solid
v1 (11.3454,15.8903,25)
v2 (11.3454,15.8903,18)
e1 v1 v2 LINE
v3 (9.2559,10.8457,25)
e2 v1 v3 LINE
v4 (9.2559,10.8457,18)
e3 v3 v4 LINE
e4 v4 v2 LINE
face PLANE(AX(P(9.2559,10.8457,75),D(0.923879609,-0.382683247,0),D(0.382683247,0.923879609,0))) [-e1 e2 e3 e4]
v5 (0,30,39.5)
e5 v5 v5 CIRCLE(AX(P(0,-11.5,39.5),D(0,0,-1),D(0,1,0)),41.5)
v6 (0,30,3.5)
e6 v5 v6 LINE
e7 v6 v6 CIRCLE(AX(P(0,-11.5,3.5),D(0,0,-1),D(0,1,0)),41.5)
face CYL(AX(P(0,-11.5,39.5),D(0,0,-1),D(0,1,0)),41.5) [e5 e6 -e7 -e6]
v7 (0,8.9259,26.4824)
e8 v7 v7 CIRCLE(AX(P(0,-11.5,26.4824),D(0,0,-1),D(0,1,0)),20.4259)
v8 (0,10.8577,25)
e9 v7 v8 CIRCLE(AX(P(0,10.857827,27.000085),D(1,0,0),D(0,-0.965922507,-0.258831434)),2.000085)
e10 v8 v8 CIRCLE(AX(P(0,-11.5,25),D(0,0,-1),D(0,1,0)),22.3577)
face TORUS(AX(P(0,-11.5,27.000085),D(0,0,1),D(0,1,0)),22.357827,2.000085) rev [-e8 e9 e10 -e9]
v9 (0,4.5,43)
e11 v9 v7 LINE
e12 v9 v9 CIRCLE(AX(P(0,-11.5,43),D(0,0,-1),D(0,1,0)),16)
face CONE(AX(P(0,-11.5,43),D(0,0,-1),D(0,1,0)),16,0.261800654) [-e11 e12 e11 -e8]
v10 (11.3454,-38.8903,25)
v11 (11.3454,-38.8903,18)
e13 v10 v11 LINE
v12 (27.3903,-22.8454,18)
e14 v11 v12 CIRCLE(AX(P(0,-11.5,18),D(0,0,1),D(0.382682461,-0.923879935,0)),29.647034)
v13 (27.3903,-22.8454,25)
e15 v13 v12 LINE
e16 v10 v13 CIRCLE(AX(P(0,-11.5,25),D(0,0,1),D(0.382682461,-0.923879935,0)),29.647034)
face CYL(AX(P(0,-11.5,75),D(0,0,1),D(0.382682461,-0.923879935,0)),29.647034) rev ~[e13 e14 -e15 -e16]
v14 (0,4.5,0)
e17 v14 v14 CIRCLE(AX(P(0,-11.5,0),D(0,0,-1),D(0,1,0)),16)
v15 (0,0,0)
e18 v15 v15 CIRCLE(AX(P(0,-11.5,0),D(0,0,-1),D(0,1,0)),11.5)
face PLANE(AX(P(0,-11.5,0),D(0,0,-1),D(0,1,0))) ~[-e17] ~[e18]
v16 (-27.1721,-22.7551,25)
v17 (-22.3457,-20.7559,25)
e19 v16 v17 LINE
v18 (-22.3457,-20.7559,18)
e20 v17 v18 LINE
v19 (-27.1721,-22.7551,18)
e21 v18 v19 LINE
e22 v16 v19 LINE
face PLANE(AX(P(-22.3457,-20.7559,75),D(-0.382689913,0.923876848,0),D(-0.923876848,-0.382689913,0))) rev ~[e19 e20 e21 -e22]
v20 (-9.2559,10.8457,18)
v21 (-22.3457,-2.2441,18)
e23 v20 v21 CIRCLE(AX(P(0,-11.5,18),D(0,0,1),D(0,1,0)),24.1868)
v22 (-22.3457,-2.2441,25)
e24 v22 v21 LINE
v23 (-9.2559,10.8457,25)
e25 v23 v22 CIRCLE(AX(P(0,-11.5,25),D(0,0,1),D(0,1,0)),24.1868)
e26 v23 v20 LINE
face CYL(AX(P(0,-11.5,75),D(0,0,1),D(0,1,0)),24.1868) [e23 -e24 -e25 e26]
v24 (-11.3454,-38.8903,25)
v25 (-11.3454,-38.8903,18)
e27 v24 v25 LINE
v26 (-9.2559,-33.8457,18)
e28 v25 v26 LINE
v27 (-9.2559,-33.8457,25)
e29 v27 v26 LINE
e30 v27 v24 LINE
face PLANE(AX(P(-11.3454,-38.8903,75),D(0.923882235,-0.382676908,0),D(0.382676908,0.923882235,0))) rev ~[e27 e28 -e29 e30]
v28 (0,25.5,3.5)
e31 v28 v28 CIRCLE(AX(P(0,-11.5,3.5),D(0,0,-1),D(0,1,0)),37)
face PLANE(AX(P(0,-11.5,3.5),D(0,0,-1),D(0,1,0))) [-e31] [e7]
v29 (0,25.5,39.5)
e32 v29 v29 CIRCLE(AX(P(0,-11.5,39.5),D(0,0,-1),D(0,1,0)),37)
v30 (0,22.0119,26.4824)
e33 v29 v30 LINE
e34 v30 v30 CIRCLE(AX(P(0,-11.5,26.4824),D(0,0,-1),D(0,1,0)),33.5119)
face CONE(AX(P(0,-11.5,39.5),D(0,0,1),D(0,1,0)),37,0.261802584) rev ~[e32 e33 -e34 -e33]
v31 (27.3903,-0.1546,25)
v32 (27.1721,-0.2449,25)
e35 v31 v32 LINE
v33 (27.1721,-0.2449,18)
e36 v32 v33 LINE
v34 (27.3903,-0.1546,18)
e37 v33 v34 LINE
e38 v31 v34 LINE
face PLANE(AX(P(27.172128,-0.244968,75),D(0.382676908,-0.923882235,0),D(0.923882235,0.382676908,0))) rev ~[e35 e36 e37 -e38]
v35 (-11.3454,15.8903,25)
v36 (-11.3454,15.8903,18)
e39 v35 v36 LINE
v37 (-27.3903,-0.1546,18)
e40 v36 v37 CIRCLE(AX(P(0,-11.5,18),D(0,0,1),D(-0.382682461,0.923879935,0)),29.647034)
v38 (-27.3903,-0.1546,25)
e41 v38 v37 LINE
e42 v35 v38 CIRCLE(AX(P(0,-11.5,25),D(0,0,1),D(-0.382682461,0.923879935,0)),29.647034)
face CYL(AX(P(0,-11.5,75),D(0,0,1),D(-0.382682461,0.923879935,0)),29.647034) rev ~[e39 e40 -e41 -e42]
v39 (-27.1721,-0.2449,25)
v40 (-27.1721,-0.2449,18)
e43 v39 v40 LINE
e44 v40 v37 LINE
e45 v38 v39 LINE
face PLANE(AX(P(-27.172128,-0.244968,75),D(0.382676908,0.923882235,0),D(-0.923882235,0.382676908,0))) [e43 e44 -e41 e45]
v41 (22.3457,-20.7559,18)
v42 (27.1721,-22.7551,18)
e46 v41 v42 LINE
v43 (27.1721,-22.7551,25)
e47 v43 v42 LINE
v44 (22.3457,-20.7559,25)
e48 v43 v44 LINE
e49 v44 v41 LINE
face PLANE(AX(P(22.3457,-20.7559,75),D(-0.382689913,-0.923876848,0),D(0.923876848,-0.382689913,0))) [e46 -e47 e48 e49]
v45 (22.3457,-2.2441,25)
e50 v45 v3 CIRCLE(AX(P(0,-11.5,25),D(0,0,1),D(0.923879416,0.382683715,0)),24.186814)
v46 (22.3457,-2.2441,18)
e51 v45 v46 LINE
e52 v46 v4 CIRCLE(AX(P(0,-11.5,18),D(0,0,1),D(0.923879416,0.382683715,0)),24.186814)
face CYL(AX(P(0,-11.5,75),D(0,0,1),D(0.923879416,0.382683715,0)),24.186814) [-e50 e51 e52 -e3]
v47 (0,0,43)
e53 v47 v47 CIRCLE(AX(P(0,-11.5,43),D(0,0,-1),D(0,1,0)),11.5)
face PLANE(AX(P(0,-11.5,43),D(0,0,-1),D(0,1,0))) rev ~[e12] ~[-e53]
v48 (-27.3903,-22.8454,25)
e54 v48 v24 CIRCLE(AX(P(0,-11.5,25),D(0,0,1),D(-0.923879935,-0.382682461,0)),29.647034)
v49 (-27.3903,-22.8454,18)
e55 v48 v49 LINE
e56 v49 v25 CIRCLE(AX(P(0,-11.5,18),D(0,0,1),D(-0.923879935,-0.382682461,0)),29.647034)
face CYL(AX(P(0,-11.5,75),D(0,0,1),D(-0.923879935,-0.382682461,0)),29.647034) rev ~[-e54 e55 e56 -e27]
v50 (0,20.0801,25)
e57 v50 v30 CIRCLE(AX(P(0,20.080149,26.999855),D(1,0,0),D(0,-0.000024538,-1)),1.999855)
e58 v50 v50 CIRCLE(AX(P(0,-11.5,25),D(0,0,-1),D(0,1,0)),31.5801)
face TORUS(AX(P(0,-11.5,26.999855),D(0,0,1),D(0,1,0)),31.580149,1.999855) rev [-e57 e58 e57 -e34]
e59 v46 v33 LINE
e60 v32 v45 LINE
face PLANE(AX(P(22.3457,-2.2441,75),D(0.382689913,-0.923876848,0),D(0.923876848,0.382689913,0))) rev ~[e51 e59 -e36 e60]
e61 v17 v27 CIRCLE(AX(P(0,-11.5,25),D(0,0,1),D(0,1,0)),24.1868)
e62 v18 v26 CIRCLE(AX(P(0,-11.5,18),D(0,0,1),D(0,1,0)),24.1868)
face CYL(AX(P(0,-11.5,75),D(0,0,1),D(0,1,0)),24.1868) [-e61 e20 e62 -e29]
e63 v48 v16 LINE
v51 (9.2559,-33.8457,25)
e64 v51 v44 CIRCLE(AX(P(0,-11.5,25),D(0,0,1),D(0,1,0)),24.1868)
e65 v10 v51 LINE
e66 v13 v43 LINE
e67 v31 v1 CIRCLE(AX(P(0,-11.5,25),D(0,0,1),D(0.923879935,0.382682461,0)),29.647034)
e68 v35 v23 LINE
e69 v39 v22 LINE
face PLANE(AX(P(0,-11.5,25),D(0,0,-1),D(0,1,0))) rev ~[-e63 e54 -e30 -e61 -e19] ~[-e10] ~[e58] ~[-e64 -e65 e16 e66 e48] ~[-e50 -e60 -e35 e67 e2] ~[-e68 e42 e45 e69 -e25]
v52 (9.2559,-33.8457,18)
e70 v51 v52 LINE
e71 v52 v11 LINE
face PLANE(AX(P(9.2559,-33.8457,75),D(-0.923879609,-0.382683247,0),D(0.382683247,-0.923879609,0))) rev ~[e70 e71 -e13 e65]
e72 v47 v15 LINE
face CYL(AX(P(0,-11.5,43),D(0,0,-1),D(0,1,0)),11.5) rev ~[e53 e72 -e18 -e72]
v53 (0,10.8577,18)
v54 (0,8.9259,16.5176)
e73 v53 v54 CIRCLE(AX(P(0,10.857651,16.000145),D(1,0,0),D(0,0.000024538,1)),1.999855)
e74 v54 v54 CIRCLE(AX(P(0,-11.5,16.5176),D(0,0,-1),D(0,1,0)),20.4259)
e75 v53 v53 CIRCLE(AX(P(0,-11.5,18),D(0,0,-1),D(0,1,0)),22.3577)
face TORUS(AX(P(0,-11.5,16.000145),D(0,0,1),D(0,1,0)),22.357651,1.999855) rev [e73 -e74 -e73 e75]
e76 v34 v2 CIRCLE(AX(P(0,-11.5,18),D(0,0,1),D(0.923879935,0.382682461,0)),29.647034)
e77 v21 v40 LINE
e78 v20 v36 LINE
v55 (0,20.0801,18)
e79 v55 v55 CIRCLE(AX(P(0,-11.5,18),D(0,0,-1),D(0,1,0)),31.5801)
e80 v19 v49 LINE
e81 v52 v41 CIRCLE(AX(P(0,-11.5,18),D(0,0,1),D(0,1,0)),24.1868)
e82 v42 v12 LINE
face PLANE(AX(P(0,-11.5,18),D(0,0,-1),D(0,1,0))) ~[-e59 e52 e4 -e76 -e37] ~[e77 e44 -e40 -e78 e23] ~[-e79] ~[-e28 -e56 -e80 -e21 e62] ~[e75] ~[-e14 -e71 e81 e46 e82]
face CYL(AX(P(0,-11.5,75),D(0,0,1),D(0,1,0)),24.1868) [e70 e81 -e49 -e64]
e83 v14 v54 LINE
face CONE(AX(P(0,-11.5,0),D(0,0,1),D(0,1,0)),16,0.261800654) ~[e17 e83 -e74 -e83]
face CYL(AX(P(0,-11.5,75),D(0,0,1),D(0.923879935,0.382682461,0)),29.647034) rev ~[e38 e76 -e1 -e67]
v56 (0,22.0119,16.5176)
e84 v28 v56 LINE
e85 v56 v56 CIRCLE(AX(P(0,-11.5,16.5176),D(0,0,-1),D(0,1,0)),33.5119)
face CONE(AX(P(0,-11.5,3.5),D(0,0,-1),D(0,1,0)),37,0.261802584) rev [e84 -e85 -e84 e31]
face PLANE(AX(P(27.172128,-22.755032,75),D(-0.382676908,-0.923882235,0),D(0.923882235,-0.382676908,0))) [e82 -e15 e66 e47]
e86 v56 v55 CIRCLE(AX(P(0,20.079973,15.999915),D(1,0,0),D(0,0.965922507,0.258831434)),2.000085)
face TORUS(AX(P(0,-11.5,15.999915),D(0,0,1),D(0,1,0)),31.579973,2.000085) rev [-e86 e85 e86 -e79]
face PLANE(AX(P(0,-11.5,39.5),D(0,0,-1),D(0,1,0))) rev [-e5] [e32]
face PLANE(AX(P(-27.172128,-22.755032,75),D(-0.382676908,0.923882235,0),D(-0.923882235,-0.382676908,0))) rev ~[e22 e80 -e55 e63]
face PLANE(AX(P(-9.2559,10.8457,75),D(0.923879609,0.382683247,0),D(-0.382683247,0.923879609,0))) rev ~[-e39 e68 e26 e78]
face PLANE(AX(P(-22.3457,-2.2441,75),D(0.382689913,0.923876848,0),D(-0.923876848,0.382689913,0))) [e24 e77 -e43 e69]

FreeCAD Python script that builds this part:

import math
import FreeCAD as App
import Part
import Sketcher

V = App.Vector
Q = App.Units.Quantity

doc = App.newDocument("Part")
body = doc.addObject("PartDesign::Body", "Body")

# Sketch on YZ plane
sketch1 = doc.addObject("Sketcher::SketchObject", "Sketch")
body.addObject(sketch1)
sketch1.AttachmentSupport = (doc.YZ_Plane, [""])
sketch1.MapMode = "FlatFace"
sketch1.addGeometry([
    Part.LineSegment(V(0, 43, 0), V(0, 0, 0)),  # 0
    Part.LineSegment(V(0, 0, 0), V(4.5, 0, 0)),  # 1
    Part.LineSegment(V(4.5, 0, 0), V(8.9, 16.5, 0)),  # 2
    Part.ArcOfCircle(Part.Circle(V(10.9, 16, 0), V(0, 0, 1), 2), math.radians(90), math.radians(165)),  # 3
    Part.LineSegment(V(10.9, 18, 0), V(20.1, 18, 0)),  # 4
    Part.ArcOfCircle(Part.Circle(V(20.1, 16, 0), V(0, 0, 1), 2), math.radians(15), math.radians(90)),  # 5
    Part.LineSegment(V(22, 16.5, 0), V(25.5, 3.5, 0)),  # 6
    Part.LineSegment(V(25.5, 3.5, 0), V(30, 3.5, 0)),  # 7
    Part.LineSegment(V(30, 3.5, 0), V(30, 39.5, 0)),  # 8
    Part.LineSegment(V(30, 39.5, 0), V(25.5, 39.5, 0)),  # 9
    Part.LineSegment(V(25.5, 39.5, 0), V(22, 26.5, 0)),  # 10
    Part.ArcOfCircle(Part.Circle(V(20.1, 27, 0), V(0, 0, 1), 2), math.radians(-90), math.radians(-15)),  # 11
    Part.LineSegment(V(20.1, 25, 0), V(10.9, 25, 0)),  # 12
    Part.ArcOfCircle(Part.Circle(V(10.9, 27, 0), V(0, 0, 1), 2), math.radians(-165), math.radians(-90)),  # 13
    Part.LineSegment(V(8.9, 26.5, 0), V(4.5, 43, 0)),  # 14
    Part.LineSegment(V(4.5, 43, 0), V(0, 43, 0)),  # 15
], False)
sketch1.addGeometry(Part.LineSegment(V(-11.5, 43, 0), V(-11.5, 0, 0)), True)  # axis
sketch1.addConstraint([
    Sketcher.Constraint("Coincident", 0, 2, 1, 1),
    Sketcher.Constraint("Coincident", 1, 2, 2, 1),
    Sketcher.Constraint("Tangent", 2, 2, 3, 2),
    Sketcher.Constraint("Tangent", 3, 1, 4, 1),
    Sketcher.Constraint("Tangent", 4, 2, 5, 2),
    Sketcher.Constraint("Tangent", 5, 1, 6, 1),
    Sketcher.Constraint("Coincident", 6, 2, 7, 1),
    Sketcher.Constraint("Coincident", 7, 2, 8, 1),
    Sketcher.Constraint("Coincident", 8, 2, 9, 1),
    Sketcher.Constraint("Coincident", 9, 2, 10, 1),
    Sketcher.Constraint("Tangent", 10, 2, 11, 2),
    Sketcher.Constraint("Tangent", 11, 1, 12, 1),
    Sketcher.Constraint("Tangent", 12, 2, 13, 2),
    Sketcher.Constraint("Tangent", 13, 1, 14, 1),
    Sketcher.Constraint("Coincident", 14, 2, 15, 1),
    Sketcher.Constraint("Coincident", 15, 2, 0, 1),
    Sketcher.Constraint("Vertical", 0),
    Sketcher.Constraint("Horizontal", 1),
    Sketcher.Constraint("Horizontal", 4),
    Sketcher.Constraint("Horizontal", 7),
    Sketcher.Constraint("Vertical", 8),
    Sketcher.Constraint("Horizontal", 9),
    Sketcher.Constraint("Horizontal", 12),
    Sketcher.Constraint("Horizontal", 15),
    Sketcher.Constraint("Vertical", 16),
    Sketcher.Constraint("Coincident", 0, 2, -1, 1),
    Sketcher.Constraint("Equal", 3, 5),
    Sketcher.Constraint("Equal", 5, 11),
    Sketcher.Constraint("Equal", 11, 13),
    Sketcher.Constraint("PointOnObject", 16, 2, -1),
    Sketcher.Constraint("Parallel", 2, 10),
    Sketcher.Constraint("Parallel", 6, 14),
    Sketcher.Constraint("Horizontal", 2, 2, 5, 1),
    Sketcher.Constraint("Horizontal", 15, 2, 16, 1),
    Sketcher.Constraint("Vertical", 5, 3, 11, 3),
    Sketcher.Constraint("Vertical", 3, 3, 13, 3),
    Sketcher.Constraint("Vertical", 6, 2, 9, 2),
    Sketcher.Constraint("Vertical", 1, 2, 14, 2),
    Sketcher.Constraint("Equal", 1, 7),
    Sketcher.Constraint("Radius", 3, Q("2 mm")),
    Sketcher.Constraint("DistanceY", 0, 2, 0, 1, Q("43 mm")),
    Sketcher.Constraint("DistanceY", 8, 1, 8, 2, Q("36 mm")),
    Sketcher.Constraint("DistanceX", 1, 1, 1, 2, Q("4.5 mm")),
    Sketcher.Constraint("DistanceY", -1, 1, 3, 1, Q("18 mm")),
    Sketcher.Constraint("DistanceX", -1, 1, 7, 2, Q("30 mm")),
    Sketcher.Constraint("Angle", 2, Q("75 deg")),
    Sketcher.Constraint("DistanceX", 16, 1, 14, 2, Q("16 mm")),
])
revolution = doc.addObject("PartDesign::Revolution", "Revolution")
body.addObject(revolution)
revolution.Profile = sketch1
revolution.ReferenceAxis = (sketch1, ["Axis0"])
revolution.Angle = 360

# Sketch on XY plane
sketch2 = doc.addObject("Sketcher::SketchObject", "Sketch001")
body.addObject(sketch2)
sketch2.AttachmentSupport = (doc.XY_Plane, [""])
sketch2.MapMode = "FlatFace"
sketch2.AttachmentOffset = App.Placement(V(0, 0, 75), App.Rotation())
sketch2.addGeometry([
    Part.LineSegment(V(11.35, 15.89, 0), V(9.26, 10.85, 0)),  # 0
    Part.ArcOfCircle(Part.Circle(V(0, -11.5, 0), V(0, 0, 1), 24.19), math.radians(23), math.radians(67)),  # 1
    Part.LineSegment(V(22.35, -2.24, 0), V(27.17, -0.24, 0)),  # 2
    Part.LineSegment(V(27.17, -0.24, 0), V(27.39, -0.15, 0)),  # 3
    Part.ArcOfCircle(Part.Circle(V(0, -11.5, 0), V(0, 0, 1), 29.65), math.radians(22), math.radians(68)),  # 4
    Part.ArcOfCircle(Part.Circle(V(0, -11.5, 0), V(0, 0, 1), 24.19), math.radians(113), math.radians(157)),  # 5
    Part.LineSegment(V(-9.26, 10.85, 0), V(-11.35, 15.89, 0)),  # 6
    Part.ArcOfCircle(Part.Circle(V(0, -11.5, 0), V(0, 0, 1), 29.65), math.radians(112), math.radians(158)),  # 7
    Part.LineSegment(V(-27.39, -0.15, 0), V(-27.17, -0.24, 0)),  # 8
    Part.LineSegment(V(-27.17, -0.24, 0), V(-22.35, -2.24, 0)),  # 9
    Part.LineSegment(V(27.17, -22.76, 0), V(22.35, -20.76, 0)),  # 10
    Part.ArcOfCircle(Part.Circle(V(0, -11.5, 0), V(0, 0, 1), 24.19), math.radians(-67), math.radians(-23)),  # 11
    Part.LineSegment(V(9.26, -33.85, 0), V(11.35, -38.89, 0)),  # 12
    Part.ArcOfCircle(Part.Circle(V(0, -11.5, 0), V(0, 0, 1), 29.65), math.radians(-68), math.radians(-22)),  # 13
    Part.LineSegment(V(27.39, -22.85, 0), V(27.17, -22.76, 0)),  # 14
    Part.LineSegment(V(-11.35, -38.89, 0), V(-9.26, -33.85, 0)),  # 15
    Part.ArcOfCircle(Part.Circle(V(0, -11.5, 0), V(0, 0, 1), 24.19), math.radians(-157), math.radians(-113)),  # 16
    Part.LineSegment(V(-22.35, -20.76, 0), V(-27.17, -22.76, 0)),  # 17
    Part.LineSegment(V(-27.17, -22.76, 0), V(-27.39, -22.85, 0)),  # 18
    Part.ArcOfCircle(Part.Circle(V(0, -11.5, 0), V(0, 0, 1), 29.65), math.radians(-158), math.radians(-112)),  # 19
], False)
sketch2.addConstraint([
    Sketcher.Constraint("Coincident", 0, 2, 1, 2),
    Sketcher.Constraint("Coincident", 1, 1, 2, 1),
    Sketcher.Constraint("Coincident", 2, 2, 3, 1),
    Sketcher.Constraint("Coincident", 3, 2, 4, 1),
    Sketcher.Constraint("Coincident", 4, 2, 0, 1),
    Sketcher.Constraint("Coincident", 5, 1, 6, 1),
    Sketcher.Constraint("Coincident", 6, 2, 7, 1),
    Sketcher.Constraint("Coincident", 7, 2, 8, 1),
    Sketcher.Constraint("Coincident", 8, 2, 9, 1),
    Sketcher.Constraint("Coincident", 9, 2, 5, 2),
    Sketcher.Constraint("Coincident", 10, 2, 11, 2),
    Sketcher.Constraint("Coincident", 11, 1, 12, 1),
    Sketcher.Constraint("Coincident", 12, 2, 13, 1),
    Sketcher.Constraint("Coincident", 13, 2, 14, 1),
    Sketcher.Constraint("Coincident", 14, 2, 10, 1),
    Sketcher.Constraint("Coincident", 15, 2, 16, 2),
    Sketcher.Constraint("Coincident", 16, 1, 17, 1),
    Sketcher.Constraint("Coincident", 17, 2, 18, 1),
    Sketcher.Constraint("Coincident", 18, 2, 19, 1),
    Sketcher.Constraint("Coincident", 19, 2, 15, 1),
    Sketcher.Constraint("Coincident", 4, 3, 1, 3),
    Sketcher.Constraint("Coincident", 5, 3, 1, 3),
    Sketcher.Constraint("Coincident", 7, 3, 1, 3),
    Sketcher.Constraint("Coincident", 11, 3, 1, 3),
    Sketcher.Constraint("Coincident", 13, 3, 1, 3),
    Sketcher.Constraint("Coincident", 16, 3, 1, 3),
    Sketcher.Constraint("Coincident", 19, 3, 1, 3),
    Sketcher.Constraint("Equal", 1, 5),
    Sketcher.Constraint("Equal", 4, 7),
    Sketcher.Constraint("Equal", 5, 11),
    Sketcher.Constraint("Equal", 7, 13),
    Sketcher.Constraint("Equal", 11, 16),
    Sketcher.Constraint("Equal", 13, 19),
    Sketcher.Constraint("Symmetric", 0, 2, 5, 1, -2),
    Sketcher.Constraint("Symmetric", 2, 2, 8, 2, -2),
    Sketcher.Constraint("Symmetric", 14, 2, 17, 2, -2),
    Sketcher.Constraint("Parallel", 2, 3),
    Sketcher.Constraint("Perpendicular", 3, 6),
    Sketcher.Constraint("Perpendicular", 0, 8),
    Sketcher.Constraint("Parallel", 8, 9),
    Sketcher.Constraint("Parallel", 9, 10),
    Sketcher.Constraint("Parallel", 6, 12),
    Sketcher.Constraint("Parallel", 10, 14),
    Sketcher.Constraint("Perpendicular", 14, 15),
    Sketcher.Constraint("Perpendicular", 12, 17),
    Sketcher.Constraint("Parallel", 17, 18),
    Sketcher.Constraint("Horizontal", 4, 2, 6, 2),
    Sketcher.Constraint("Horizontal", 11, 1, 15, 2),
    Sketcher.Constraint("Vertical", 1, 1, 10, 2),
    Sketcher.Constraint("Vertical", 0, 2, 11, 1),
    Sketcher.Constraint("Vertical", 2, 2, 14, 2),
    Sketcher.Constraint("Angle", 2, Q("22.5004 deg")),
    Sketcher.Constraint("Radius", 4, Q("29.647 mm")),
    Sketcher.Constraint("DistanceY", 1, 3, -1, 1, Q("11.5 mm")),
    Sketcher.Constraint("Radius", 1, Q("24.1868 mm")),
    Sketcher.Constraint("Distance", 2, Q("5.224 mm")),
    Sketcher.Constraint("DistanceX", -1, 1, 0, 2, Q("9.256 mm")),
    Sketcher.Constraint("DistanceY", 1, 1, -1, 1, Q("2.244 mm")),
])
pocket1 = doc.addObject("PartDesign::Pocket", "Pocket")
body.addObject(pocket1)
pocket1.Profile = sketch2
pocket1.Type = "ThroughAll"

doc.recompute()
